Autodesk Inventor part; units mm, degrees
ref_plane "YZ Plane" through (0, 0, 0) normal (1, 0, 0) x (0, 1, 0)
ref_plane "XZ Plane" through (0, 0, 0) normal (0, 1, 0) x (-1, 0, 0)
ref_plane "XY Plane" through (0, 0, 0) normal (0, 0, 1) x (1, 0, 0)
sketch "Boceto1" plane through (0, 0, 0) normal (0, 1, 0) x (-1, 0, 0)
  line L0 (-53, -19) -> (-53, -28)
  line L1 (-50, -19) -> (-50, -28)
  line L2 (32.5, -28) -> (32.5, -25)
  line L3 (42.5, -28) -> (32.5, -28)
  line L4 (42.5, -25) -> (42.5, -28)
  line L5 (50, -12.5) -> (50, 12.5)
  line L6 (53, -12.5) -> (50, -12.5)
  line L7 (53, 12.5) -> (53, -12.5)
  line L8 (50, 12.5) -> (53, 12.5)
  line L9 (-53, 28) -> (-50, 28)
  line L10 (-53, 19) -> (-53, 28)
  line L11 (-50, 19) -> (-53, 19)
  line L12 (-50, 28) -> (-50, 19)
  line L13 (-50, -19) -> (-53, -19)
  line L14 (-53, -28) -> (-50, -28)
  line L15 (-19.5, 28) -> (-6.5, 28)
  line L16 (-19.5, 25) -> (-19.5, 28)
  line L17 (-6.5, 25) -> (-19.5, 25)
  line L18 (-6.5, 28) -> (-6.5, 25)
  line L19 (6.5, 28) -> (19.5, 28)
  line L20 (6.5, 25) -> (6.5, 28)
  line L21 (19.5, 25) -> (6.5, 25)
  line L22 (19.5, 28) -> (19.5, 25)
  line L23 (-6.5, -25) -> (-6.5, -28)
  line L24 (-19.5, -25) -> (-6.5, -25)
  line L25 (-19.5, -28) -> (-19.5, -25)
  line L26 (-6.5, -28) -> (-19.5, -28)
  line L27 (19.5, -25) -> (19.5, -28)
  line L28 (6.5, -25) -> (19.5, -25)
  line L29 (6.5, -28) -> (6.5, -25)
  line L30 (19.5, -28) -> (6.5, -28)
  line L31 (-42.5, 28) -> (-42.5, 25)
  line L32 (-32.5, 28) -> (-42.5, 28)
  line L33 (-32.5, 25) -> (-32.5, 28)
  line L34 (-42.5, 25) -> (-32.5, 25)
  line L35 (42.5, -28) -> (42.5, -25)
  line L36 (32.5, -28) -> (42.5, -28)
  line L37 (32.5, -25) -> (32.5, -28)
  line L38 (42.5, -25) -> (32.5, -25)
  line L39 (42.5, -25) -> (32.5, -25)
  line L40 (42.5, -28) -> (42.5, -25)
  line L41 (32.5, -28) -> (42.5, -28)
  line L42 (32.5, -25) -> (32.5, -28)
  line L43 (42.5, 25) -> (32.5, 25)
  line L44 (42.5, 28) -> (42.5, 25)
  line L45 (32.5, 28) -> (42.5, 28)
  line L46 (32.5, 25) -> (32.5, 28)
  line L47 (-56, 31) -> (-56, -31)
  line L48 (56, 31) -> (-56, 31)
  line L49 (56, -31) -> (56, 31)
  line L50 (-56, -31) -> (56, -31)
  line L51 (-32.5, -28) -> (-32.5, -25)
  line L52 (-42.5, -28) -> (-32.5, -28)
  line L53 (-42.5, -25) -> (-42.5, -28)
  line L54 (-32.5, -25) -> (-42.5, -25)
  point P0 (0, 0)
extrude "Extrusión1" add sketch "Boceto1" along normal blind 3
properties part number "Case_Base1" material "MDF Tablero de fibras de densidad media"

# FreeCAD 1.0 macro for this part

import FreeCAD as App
import Part
import Sketcher
from FreeCAD import Vector
Q = App.Units.Quantity

doc = App.newDocument("Part")
params = doc.addObject("Spreadsheet::Sheet", "Params")
for row, (alias, value) in enumerate([
    ("sketch1_width", "112 mm"),
    ("sketch1_width2", "3 mm"),
    ("sketch1_width3", "10 mm"),
    ("sketch1_width4", "13 mm"),
    ("sketch1_height", "62 mm"),
    ("pad1_length", "3 mm"),
], start=1):
    params.set(f"A{row}", alias)
    params.set(f"B{row}", "=" + value)
    params.setAlias(f"B{row}", alias)

body = doc.addObject("PartDesign::Body", "Body")

# Sketch on XZ plane
sketch1 = body.newObject("Sketcher::SketchObject", "Sketch")
sketch1.AttachmentSupport = (doc.getObject("XZ_Plane"), [""])
sketch1.MapMode = "FlatFace"
sketch1.addGeometry(Part.LineSegment(Vector(-56, 31, 0), Vector(56, 31, 0)), False)
sketch1.addGeometry(Part.LineSegment(Vector(56, 31, 0), Vector(56, -31, 0)), False)
sketch1.addGeometry(Part.LineSegment(Vector(56, -31, 0), Vector(-56, -31, 0)), False)
sketch1.addGeometry(Part.LineSegment(Vector(-56, -31, 0), Vector(-56, 31, 0)), False)
sketch1.addGeometry(Part.LineSegment(Vector(53, -28, 0), Vector(53, -19, 0)), False)
sketch1.addGeometry(Part.LineSegment(Vector(53, -19, 0), Vector(50, -19, 0)), False)
sketch1.addGeometry(Part.LineSegment(Vector(50, -19, 0), Vector(50, -28, 0)), False)
sketch1.addGeometry(Part.LineSegment(Vector(50, -28, 0), Vector(53, -28, 0)), False)
sketch1.addGeometry(Part.LineSegment(Vector(32.5, -25, 0), Vector(32.5, -28, 0)), False)
sketch1.addGeometry(Part.LineSegment(Vector(32.5, -28, 0), Vector(42.5, -28, 0)), False)
sketch1.addGeometry(Part.LineSegment(Vector(42.5, -28, 0), Vector(42.5, -25, 0)), False)
sketch1.addGeometry(Part.LineSegment(Vector(42.5, -25, 0), Vector(32.5, -25, 0)), False)
sketch1.addGeometry(Part.LineSegment(Vector(19.5, -25, 0), Vector(6.5, -25, 0)), False)
sketch1.addGeometry(Part.LineSegment(Vector(6.5, -25, 0), Vector(6.5, -28, 0)), False)
sketch1.addGeometry(Part.LineSegment(Vector(6.5, -28, 0), Vector(19.5, -28, 0)), False)
sketch1.addGeometry(Part.LineSegment(Vector(19.5, -28, 0), Vector(19.5, -25, 0)), False)
sketch1.addGeometry(Part.LineSegment(Vector(-6.5, -25, 0), Vector(-19.5, -25, 0)), False)
sketch1.addGeometry(Part.LineSegment(Vector(-19.5, -25, 0), Vector(-19.5, -28, 0)), False)
sketch1.addGeometry(Part.LineSegment(Vector(-19.5, -28, 0), Vector(-6.5, -28, 0)), False)
sketch1.addGeometry(Part.LineSegment(Vector(-6.5, -28, 0), Vector(-6.5, -25, 0)), False)
sketch1.addGeometry(Part.LineSegment(Vector(-42.5, -28, 0), Vector(-32.5, -28, 0)), False)
sketch1.addGeometry(Part.LineSegment(Vector(-32.5, -28, 0), Vector(-32.5, -25, 0)), False)
sketch1.addGeometry(Part.LineSegment(Vector(-32.5, -25, 0), Vector(-42.5, -25, 0)), False)
sketch1.addGeometry(Part.LineSegment(Vector(-42.5, -25, 0), Vector(-42.5, -28, 0)), False)
sketch1.addGeometry(Part.LineSegment(Vector(53, 19, 0), Vector(53, 28, 0)), False)
sketch1.addGeometry(Part.LineSegment(Vector(53, 28, 0), Vector(50, 28, 0)), False)
sketch1.addGeometry(Part.LineSegment(Vector(50, 28, 0), Vector(50, 19, 0)), False)
sketch1.addGeometry(Part.LineSegment(Vector(50, 19, 0), Vector(53, 19, 0)), False)
sketch1.addGeometry(Part.LineSegment(Vector(42.5, 25, 0), Vector(42.5, 28, 0)), False)
sketch1.addGeometry(Part.LineSegment(Vector(42.5, 28, 0), Vector(32.5, 28, 0)), False)
sketch1.addGeometry(Part.LineSegment(Vector(32.5, 28, 0), Vector(32.5, 25, 0)), False)
sketch1.addGeometry(Part.LineSegment(Vector(32.5, 25, 0), Vector(42.5, 25, 0)), False)
sketch1.addGeometry(Part.LineSegment(Vector(19.5, 25, 0), Vector(19.5, 28, 0)), False)
sketch1.addGeometry(Part.LineSegment(Vector(19.5, 28, 0), Vector(6.5, 28, 0)), False)
sketch1.addGeometry(Part.LineSegment(Vector(6.5, 28, 0), Vector(6.5, 25, 0)), False)
sketch1.addGeometry(Part.LineSegment(Vector(6.5, 25, 0), Vector(19.5, 25, 0)), False)
sketch1.addGeometry(Part.LineSegment(Vector(-53, -12.5, 0), Vector(-50, -12.5, 0)), False)
sketch1.addGeometry(Part.LineSegment(Vector(-50, -12.5, 0), Vector(-50, 12.5, 0)), False)
sketch1.addGeometry(Part.LineSegment(Vector(-50, 12.5, 0), Vector(-53, 12.5, 0)), False)
sketch1.addGeometry(Part.LineSegment(Vector(-53, 12.5, 0), Vector(-53, -12.5, 0)), False)
sketch1.addGeometry(Part.LineSegment(Vector(-6.5, 25, 0), Vector(-6.5, 28, 0)), False)
sketch1.addGeometry(Part.LineSegment(Vector(-6.5, 28, 0), Vector(-19.5, 28, 0)), False)
sketch1.addGeometry(Part.LineSegment(Vector(-19.5, 28, 0), Vector(-19.5, 25, 0)), False)
sketch1.addGeometry(Part.LineSegment(Vector(-19.5, 25, 0), Vector(-6.5, 25, 0)), False)
sketch1.addGeometry(Part.LineSegment(Vector(-42.5, 28, 0), Vector(-42.5, 25, 0)), False)
sketch1.addGeometry(Part.LineSegment(Vector(-42.5, 25, 0), Vector(-32.5, 25, 0)), False)
sketch1.addGeometry(Part.LineSegment(Vector(-32.5, 25, 0), Vector(-32.5, 28, 0)), False)
sketch1.addGeometry(Part.LineSegment(Vector(-32.5, 28, 0), Vector(-42.5, 28, 0)), False)
sketch1.addConstraint(Sketcher.Constraint("Coincident", 0, 2, 1, 1))
sketch1.addConstraint(Sketcher.Constraint("Coincident", 1, 2, 2, 1))
sketch1.addConstraint(Sketcher.Constraint("Coincident", 2, 2, 3, 1))
sketch1.addConstraint(Sketcher.Constraint("Coincident", 3, 2, 0, 1))
sketch1.addConstraint(Sketcher.Constraint("Coincident", 4, 2, 5, 1))
sketch1.addConstraint(Sketcher.Constraint("Coincident", 5, 2, 6, 1))
sketch1.addConstraint(Sketcher.Constraint("Coincident", 6, 2, 7, 1))
sketch1.addConstraint(Sketcher.Constraint("Coincident", 7, 2, 4, 1))
sketch1.addConstraint(Sketcher.Constraint("Coincident", 8, 2, 9, 1))
sketch1.addConstraint(Sketcher.Constraint("Coincident", 9, 2, 10, 1))
sketch1.addConstraint(Sketcher.Constraint("Coincident", 10, 2, 11, 1))
sketch1.addConstraint(Sketcher.Constraint("Coincident", 11, 2, 8, 1))
sketch1.addConstraint(Sketcher.Constraint("Coincident", 12, 2, 13, 1))
sketch1.addConstraint(Sketcher.Constraint("Coincident", 13, 2, 14, 1))
sketch1.addConstraint(Sketcher.Constraint("Coincident", 14, 2, 15, 1))
sketch1.addConstraint(Sketcher.Constraint("Coincident", 15, 2, 12, 1))
sketch1.addConstraint(Sketcher.Constraint("Coincident", 16, 2, 17, 1))
sketch1.addConstraint(Sketcher.Constraint("Coincident", 17, 2, 18, 1))
sketch1.addConstraint(Sketcher.Constraint("Coincident", 18, 2, 19, 1))
sketch1.addConstraint(Sketcher.Constraint("Coincident", 19, 2, 16, 1))
sketch1.addConstraint(Sketcher.Constraint("Coincident", 20, 2, 21, 1))
sketch1.addConstraint(Sketcher.Constraint("Coincident", 21, 2, 22, 1))
sketch1.addConstraint(Sketcher.Constraint("Coincident", 22, 2, 23, 1))
sketch1.addConstraint(Sketcher.Constraint("Coincident", 23, 2, 20, 1))
sketch1.addConstraint(Sketcher.Constraint("Coincident", 24, 2, 25, 1))
sketch1.addConstraint(Sketcher.Constraint("Coincident", 25, 2, 26, 1))
sketch1.addConstraint(Sketcher.Constraint("Coincident", 26, 2, 27, 1))
sketch1.addConstraint(Sketcher.Constraint("Coincident", 27, 2, 24, 1))
sketch1.addConstraint(Sketcher.Constraint("Coincident", 28, 2, 29, 1))
sketch1.addConstraint(Sketcher.Constraint("Coincident", 29, 2, 30, 1))
sketch1.addConstraint(Sketcher.Constraint("Coincident", 30, 2, 31, 1))
sketch1.addConstraint(Sketcher.Constraint("Coincident", 31, 2, 28, 1))
sketch1.addConstraint(Sketcher.Constraint("Coincident", 32, 2, 33, 1))
sketch1.addConstraint(Sketcher.Constraint("Coincident", 33, 2, 34, 1))
sketch1.addConstraint(Sketcher.Constraint("Coincident", 34, 2, 35, 1))
sketch1.addConstraint(Sketcher.Constraint("Coincident", 35, 2, 32, 1))
sketch1.addConstraint(Sketcher.Constraint("Coincident", 36, 2, 37, 1))
sketch1.addConstraint(Sketcher.Constraint("Coincident", 37, 2, 38, 1))
sketch1.addConstraint(Sketcher.Constraint("Coincident", 38, 2, 39, 1))
sketch1.addConstraint(Sketcher.Constraint("Coincident", 39, 2, 36, 1))
sketch1.addConstraint(Sketcher.Constraint("Coincident", 40, 2, 41, 1))
sketch1.addConstraint(Sketcher.Constraint("Coincident", 41, 2, 42, 1))
sketch1.addConstraint(Sketcher.Constraint("Coincident", 42, 2, 43, 1))
sketch1.addConstraint(Sketcher.Constraint("Coincident", 43, 2, 40, 1))
sketch1.addConstraint(Sketcher.Constraint("Coincident", 44, 2, 45, 1))
sketch1.addConstraint(Sketcher.Constraint("Coincident", 45, 2, 46, 1))
sketch1.addConstraint(Sketcher.Constraint("Coincident", 46, 2, 47, 1))
sketch1.addConstraint(Sketcher.Constraint("Coincident", 47, 2, 44, 1))
sketch1.addConstraint(Sketcher.Constraint("Horizontal", 0))
sketch1.addConstraint(Sketcher.Constraint("Vertical", 1))
sketch1.addConstraint(Sketcher.Constraint("Horizontal", 2))
sketch1.addConstraint(Sketcher.Constraint("Vertical", 3))
sketch1.addConstraint(Sketcher.Constraint("Vertical", 4))
sketch1.addConstraint(Sketcher.Constraint("Horizontal", 5))
sketch1.addConstraint(Sketcher.Constraint("Vertical", 6))
sketch1.addConstraint(Sketcher.Constraint("Horizontal", 7))
sketch1.addConstraint(Sketcher.Constraint("Vertical", 8))
sketch1.addConstraint(Sketcher.Constraint("Horizontal", 9))
sketch1.addConstraint(Sketcher.Constraint("Vertical", 10))
sketch1.addConstraint(Sketcher.Constraint("Horizontal", 11))
sketch1.addConstraint(Sketcher.Constraint("Horizontal", 12))
sketch1.addConstraint(Sketcher.Constraint("Vertical", 13))
sketch1.addConstraint(Sketcher.Constraint("Horizontal", 14))
sketch1.addConstraint(Sketcher.Constraint("Vertical", 15))
sketch1.addConstraint(Sketcher.Constraint("Horizontal", 16))
sketch1.addConstraint(Sketcher.Constraint("Vertical", 17))
sketch1.addConstraint(Sketcher.Constraint("Horizontal", 18))
sketch1.addConstraint(Sketcher.Constraint("Vertical", 19))
sketch1.addConstraint(Sketcher.Constraint("Horizontal", 20))
sketch1.addConstraint(Sketcher.Constraint("Vertical", 21))
sketch1.addConstraint(Sketcher.Constraint("Horizontal", 22))
sketch1.addConstraint(Sketcher.Constraint("Vertical", 23))
sketch1.addConstraint(Sketcher.Constraint("Vertical", 24))
sketch1.addConstraint(Sketcher.Constraint("Horizontal", 25))
sketch1.addConstraint(Sketcher.Constraint("Vertical", 26))
sketch1.addConstraint(Sketcher.Constraint("Horizontal", 27))
sketch1.addConstraint(Sketcher.Constraint("Vertical", 28))
sketch1.addConstraint(Sketcher.Constraint("Horizontal", 29))
sketch1.addConstraint(Sketcher.Constraint("Vertical", 30))
sketch1.addConstraint(Sketcher.Constraint("Horizontal", 31))
sketch1.addConstraint(Sketcher.Constraint("Vertical", 32))
sketch1.addConstraint(Sketcher.Constraint("Horizontal", 33))
sketch1.addConstraint(Sketcher.Constraint("Vertical", 34))
sketch1.addConstraint(Sketcher.Constraint("Horizontal", 35))
sketch1.addConstraint(Sketcher.Constraint("Horizontal", 36))
sketch1.addConstraint(Sketcher.Constraint("Vertical", 37))
sketch1.addConstraint(Sketcher.Constraint("Horizontal", 38))
sketch1.addConstraint(Sketcher.Constraint("Vertical", 39))
sketch1.addConstraint(Sketcher.Constraint("Vertical", 40))
sketch1.addConstraint(Sketcher.Constraint("Horizontal", 41))
sketch1.addConstraint(Sketcher.Constraint("Vertical", 42))
sketch1.addConstraint(Sketcher.Constraint("Horizontal", 43))
sketch1.addConstraint(Sketcher.Constraint("Vertical", 44))
sketch1.addConstraint(Sketcher.Constraint("Horizontal", 45))
sketch1.addConstraint(Sketcher.Constraint("Vertical", 46))
sketch1.addConstraint(Sketcher.Constraint("Horizontal", 47))
sketch1.addConstraint(Sketcher.Constraint("Symmetric", 0, 2, 2, 2, -1, 1))
sketch1.addConstraint(Sketcher.Constraint("Symmetric", 23, 2, 28, 2, -1, 1))
sketch1.addConstraint(Sketcher.Constraint("Symmetric", 21, 2, 30, 2, -1, 1))
sketch1.addConstraint(Sketcher.Constraint("Symmetric", 17, 2, 32, 2, -1, 1))
sketch1.addConstraint(Sketcher.Constraint("Symmetric", 19, 2, 34, 2, -1, 1))
sketch1.addConstraint(Sketcher.Constraint("Symmetric", 13, 2, 40, 2, -1, 1))
sketch1.addConstraint(Sketcher.Constraint("Symmetric", 15, 2, 42, 2, -1, 1))
sketch1.addConstraint(Sketcher.Constraint("Symmetric", 10, 2, 44, 2, -1, 1))
sketch1.addConstraint(Sketcher.Constraint("Symmetric", 8, 2, 46, 2, -1, 1))
sketch1.addConstraint(Sketcher.Constraint("Symmetric", 15, 2, 16, 2, -2))
sketch1.addConstraint(Sketcher.Constraint("Symmetric", 13, 2, 18, 2, -2))
sketch1.addConstraint(Sketcher.Constraint("Symmetric", 8, 2, 20, 2, -2))
sketch1.addConstraint(Sketcher.Constraint("Symmetric", 10, 2, 22, 2, -2))
sketch1.addConstraint(Sketcher.Constraint("Symmetric", 7, 2, 24, 2, -1))
sketch1.addConstraint(Sketcher.Constraint("Symmetric", 5, 2, 26, 2, -1))
sketch1.addConstraint(Sketcher.Constraint("Horizontal", 7, 2, 8, 2))
sketch1.addConstraint(Sketcher.Constraint("Horizontal", 11, 2, 12, 2))
sketch1.addConstraint(Sketcher.Constraint("Horizontal", 9, 2, 13, 2))
sketch1.addConstraint(Sketcher.Constraint("Equal", 27, 36))
sketch1.addConstraint(Sketcher.Constraint("Equal", 38, 8))
sketch1.addConstraint(Sketcher.Constraint("DistanceX", 0, 1, 0, 2, Q("112 mm")))
sketch1.addConstraint(Sketcher.Constraint("DistanceX", 5, 2, 5, 1, Q("3 mm")))
sketch1.addConstraint(Sketcher.Constraint("DistanceX", 9, 1, 9, 2, Q("10 mm")))
sketch1.addConstraint(Sketcher.Constraint("DistanceX", 12, 2, 12, 1, Q("13 mm")))
sketch1.addConstraint(Sketcher.Constraint("DistanceY", 1, 2, 1, 1, Q("62 mm")))
sketch1.addConstraint(Sketcher.Constraint("DistanceY", 4, 1, 4, 2, Q("9 mm")))
sketch1.addConstraint(Sketcher.Constraint("DistanceY", 37, 1, 37, 2, Q("25 mm")))
sketch1.addConstraint(Sketcher.Constraint("DistanceX", -1, 1, 4, 2, Q("53 mm")))
sketch1.addConstraint(Sketcher.Constraint("DistanceY", 4, 2, -1, 1, Q("19 mm")))
sketch1.addConstraint(Sketcher.Constraint("DistanceX", 36, 2, -1, 1, Q("50 mm")))
sketch1.addConstraint(Sketcher.Constraint("DistanceX", 12, 2, 11, 2, Q("26 mm")))
sketch1.addConstraint(Sketcher.Constraint("DistanceX", 16, 2, 12, 2, Q("26 mm")))
sketch1.addConstraint(Sketcher.Constraint("DistanceY", 36, 2, -1, 1, Q("12.5 mm")))
sketch1.setExpression("Constraints[116]", "Params.sketch1_width")
sketch1.setExpression("Constraints[117]", "Params.sketch1_width2")
sketch1.setExpression("Constraints[118]", "Params.sketch1_width3")
sketch1.setExpression("Constraints[119]", "Params.sketch1_width4")
sketch1.setExpression("Constraints[120]", "Params.sketch1_height")
pad1 = body.newObject("PartDesign::Pad", "Pad")
pad1.Profile = sketch1
pad1.setExpression("Length", "Params.pad1_length")
pad1.Reversed = True

doc.recompute()
